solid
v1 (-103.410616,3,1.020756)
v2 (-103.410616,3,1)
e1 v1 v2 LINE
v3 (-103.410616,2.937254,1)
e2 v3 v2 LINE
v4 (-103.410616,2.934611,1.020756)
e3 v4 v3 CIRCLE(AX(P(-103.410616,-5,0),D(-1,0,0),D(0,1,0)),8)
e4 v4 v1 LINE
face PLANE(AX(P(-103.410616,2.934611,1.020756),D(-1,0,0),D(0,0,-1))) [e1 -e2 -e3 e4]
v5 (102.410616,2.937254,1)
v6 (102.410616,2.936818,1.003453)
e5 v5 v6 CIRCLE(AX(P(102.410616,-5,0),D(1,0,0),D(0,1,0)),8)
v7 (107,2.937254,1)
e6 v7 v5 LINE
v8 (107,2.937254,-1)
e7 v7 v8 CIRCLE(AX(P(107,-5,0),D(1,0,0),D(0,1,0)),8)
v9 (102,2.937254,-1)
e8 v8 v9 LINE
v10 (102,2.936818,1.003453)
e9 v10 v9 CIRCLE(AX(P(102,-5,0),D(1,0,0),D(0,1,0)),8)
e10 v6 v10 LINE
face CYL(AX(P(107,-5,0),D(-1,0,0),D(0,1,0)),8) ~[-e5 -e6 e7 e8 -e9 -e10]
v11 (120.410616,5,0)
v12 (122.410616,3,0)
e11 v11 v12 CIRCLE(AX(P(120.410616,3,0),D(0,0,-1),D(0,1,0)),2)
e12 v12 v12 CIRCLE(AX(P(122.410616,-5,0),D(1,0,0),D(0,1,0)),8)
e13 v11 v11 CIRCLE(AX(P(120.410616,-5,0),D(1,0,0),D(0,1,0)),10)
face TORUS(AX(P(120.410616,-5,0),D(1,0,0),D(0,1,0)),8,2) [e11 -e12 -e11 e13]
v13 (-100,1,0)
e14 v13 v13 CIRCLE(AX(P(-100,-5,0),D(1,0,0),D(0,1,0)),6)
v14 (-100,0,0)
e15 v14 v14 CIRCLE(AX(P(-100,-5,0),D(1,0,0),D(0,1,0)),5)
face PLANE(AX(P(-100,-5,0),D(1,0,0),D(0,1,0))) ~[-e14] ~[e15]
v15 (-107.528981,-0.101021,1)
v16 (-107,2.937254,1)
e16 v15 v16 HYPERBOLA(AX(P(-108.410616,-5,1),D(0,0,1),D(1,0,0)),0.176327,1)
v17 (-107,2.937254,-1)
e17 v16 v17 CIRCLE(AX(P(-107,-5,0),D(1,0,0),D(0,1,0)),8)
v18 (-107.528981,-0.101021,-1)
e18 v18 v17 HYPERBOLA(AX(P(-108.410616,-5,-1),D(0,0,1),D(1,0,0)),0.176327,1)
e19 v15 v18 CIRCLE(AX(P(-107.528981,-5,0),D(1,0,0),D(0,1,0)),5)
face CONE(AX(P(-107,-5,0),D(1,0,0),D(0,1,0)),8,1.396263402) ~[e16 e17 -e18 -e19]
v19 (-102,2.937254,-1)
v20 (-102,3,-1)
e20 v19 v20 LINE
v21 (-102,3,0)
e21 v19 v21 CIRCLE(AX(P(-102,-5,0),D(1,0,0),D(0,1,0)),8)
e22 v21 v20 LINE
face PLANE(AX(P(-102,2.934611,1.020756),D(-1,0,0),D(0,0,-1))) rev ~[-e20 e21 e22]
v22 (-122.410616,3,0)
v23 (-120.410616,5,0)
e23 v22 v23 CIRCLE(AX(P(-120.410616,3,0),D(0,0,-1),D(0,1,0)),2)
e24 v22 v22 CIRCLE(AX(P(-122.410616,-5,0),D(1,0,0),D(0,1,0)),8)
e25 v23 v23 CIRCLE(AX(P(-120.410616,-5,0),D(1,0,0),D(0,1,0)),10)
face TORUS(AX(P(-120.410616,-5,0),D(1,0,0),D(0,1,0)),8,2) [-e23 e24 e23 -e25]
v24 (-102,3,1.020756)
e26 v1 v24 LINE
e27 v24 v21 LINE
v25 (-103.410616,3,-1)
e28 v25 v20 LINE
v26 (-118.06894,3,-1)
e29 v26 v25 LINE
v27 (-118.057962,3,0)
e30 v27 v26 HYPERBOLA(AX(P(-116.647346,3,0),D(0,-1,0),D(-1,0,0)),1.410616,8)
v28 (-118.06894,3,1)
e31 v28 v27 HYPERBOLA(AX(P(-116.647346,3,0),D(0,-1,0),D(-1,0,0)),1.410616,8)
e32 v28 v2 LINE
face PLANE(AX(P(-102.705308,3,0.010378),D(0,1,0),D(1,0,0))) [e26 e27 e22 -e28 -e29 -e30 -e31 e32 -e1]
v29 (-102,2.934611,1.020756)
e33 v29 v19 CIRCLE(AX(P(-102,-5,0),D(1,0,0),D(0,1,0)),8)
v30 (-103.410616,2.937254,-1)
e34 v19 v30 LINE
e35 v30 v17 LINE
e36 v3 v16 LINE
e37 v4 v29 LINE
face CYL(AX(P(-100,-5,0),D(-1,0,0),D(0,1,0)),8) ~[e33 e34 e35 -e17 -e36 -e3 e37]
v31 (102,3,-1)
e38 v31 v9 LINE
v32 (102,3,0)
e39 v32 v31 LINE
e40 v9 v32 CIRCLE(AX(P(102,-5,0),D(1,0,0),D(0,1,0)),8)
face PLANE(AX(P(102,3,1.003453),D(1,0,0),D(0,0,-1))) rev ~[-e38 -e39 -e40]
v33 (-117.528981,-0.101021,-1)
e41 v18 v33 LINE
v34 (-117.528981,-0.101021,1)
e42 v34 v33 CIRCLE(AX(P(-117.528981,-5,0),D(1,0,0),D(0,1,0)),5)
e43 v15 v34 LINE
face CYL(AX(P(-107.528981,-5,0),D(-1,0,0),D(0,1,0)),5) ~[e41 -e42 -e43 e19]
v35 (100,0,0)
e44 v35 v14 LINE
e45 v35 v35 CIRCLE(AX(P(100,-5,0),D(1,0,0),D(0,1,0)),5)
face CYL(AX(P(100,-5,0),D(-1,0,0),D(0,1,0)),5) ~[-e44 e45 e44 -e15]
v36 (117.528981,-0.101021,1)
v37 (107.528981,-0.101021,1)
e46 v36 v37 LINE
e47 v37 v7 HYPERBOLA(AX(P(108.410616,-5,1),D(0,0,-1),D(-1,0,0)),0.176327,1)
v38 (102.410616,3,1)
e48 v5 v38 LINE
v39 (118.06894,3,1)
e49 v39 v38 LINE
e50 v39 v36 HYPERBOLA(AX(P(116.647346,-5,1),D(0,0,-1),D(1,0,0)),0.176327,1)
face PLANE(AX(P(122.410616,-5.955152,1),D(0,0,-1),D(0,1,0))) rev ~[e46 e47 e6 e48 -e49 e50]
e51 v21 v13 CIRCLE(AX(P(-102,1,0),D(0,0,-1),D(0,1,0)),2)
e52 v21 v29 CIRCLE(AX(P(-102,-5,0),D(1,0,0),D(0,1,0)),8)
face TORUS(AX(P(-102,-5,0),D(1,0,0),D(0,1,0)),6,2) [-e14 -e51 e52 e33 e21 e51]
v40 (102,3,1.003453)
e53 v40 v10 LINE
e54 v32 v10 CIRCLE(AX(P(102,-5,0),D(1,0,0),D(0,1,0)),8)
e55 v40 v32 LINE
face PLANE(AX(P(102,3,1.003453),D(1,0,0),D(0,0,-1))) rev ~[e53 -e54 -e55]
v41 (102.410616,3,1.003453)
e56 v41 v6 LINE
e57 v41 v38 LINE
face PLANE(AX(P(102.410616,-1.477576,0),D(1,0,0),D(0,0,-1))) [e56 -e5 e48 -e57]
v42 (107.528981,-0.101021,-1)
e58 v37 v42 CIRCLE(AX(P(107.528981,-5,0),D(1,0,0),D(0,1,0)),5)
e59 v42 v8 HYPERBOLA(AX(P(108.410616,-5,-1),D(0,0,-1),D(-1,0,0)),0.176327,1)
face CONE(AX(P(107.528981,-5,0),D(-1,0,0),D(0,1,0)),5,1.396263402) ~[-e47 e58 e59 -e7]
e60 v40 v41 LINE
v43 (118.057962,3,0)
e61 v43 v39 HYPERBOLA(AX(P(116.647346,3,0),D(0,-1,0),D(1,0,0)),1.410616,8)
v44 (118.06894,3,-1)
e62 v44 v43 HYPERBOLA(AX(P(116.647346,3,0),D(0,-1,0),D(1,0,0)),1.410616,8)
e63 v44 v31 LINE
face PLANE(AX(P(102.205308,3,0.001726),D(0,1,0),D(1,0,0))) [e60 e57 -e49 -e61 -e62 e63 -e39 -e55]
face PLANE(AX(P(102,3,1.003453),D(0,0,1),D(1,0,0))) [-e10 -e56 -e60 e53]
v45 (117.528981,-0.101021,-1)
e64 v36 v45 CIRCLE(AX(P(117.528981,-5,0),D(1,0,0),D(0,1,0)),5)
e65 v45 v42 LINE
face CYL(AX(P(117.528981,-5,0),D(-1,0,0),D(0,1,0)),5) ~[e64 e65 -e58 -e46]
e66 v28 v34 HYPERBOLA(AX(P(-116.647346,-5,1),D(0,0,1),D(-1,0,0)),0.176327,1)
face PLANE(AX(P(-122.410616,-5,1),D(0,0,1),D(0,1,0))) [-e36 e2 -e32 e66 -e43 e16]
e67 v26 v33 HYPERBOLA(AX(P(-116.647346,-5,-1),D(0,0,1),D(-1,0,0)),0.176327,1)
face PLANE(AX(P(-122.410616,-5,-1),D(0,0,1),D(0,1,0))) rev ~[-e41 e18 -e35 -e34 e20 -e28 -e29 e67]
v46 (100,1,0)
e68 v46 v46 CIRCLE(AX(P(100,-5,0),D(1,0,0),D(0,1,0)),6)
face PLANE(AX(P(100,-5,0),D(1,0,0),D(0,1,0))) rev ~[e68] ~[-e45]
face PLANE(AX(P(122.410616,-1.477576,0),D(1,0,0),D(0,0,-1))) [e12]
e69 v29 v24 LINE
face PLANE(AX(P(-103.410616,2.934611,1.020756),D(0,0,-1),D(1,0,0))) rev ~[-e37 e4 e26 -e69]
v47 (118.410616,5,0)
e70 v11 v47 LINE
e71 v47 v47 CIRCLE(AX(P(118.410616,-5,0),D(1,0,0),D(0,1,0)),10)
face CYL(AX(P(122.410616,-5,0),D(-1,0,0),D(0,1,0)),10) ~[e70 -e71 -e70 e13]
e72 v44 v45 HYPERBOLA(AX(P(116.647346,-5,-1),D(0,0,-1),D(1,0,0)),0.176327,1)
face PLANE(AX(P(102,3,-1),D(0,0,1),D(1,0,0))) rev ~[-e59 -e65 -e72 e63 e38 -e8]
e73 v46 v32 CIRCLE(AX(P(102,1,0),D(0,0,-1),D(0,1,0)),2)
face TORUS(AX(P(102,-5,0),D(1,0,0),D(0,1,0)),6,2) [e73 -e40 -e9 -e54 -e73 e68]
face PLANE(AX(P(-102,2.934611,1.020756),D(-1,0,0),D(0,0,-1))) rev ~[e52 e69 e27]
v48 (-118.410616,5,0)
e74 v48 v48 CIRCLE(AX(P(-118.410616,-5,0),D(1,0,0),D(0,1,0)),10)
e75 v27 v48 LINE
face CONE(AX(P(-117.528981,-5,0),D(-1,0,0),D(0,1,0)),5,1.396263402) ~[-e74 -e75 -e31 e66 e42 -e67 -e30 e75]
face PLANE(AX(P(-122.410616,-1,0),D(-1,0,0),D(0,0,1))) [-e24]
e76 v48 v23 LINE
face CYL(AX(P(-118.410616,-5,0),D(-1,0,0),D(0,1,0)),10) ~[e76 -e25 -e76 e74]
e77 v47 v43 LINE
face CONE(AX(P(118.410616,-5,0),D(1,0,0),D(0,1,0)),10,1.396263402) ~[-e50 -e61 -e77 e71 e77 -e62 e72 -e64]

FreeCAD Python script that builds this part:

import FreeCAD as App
import Part
import Sketcher
Q = App.Units.Quantity


def edges_at(feature, points):
    """Names of the edges that pass closest to the given points."""
    edges = feature.Shape.Edges
    near = lambda p: min(range(len(edges)), key=lambda i: edges[i].distToShape(Part.Vertex(*p))[0])
    return sorted({f"Edge{near(p) + 1}" for p in points})


def add_polygon(sketch, points):
    """Adds a closed chain of lines whose ends are joined by coincident constraints."""
    first, n = sketch.GeometryCount, len(points)
    for a, b in zip(points, points[1:] + points[:1]):
        sketch.addGeometry(Part.LineSegment(App.Vector(*a, 0), App.Vector(*b, 0)), False)
    for i in range(n):
        sketch.addConstraint(Sketcher.Constraint("Coincident", first + i, 2, first + (i + 1) % n, 1))

doc = App.newDocument("Part")
params = doc.addObject("Spreadsheet::Sheet", "Params")
for row, (alias, value) in enumerate([
    ("sketch1_width", "200 mm"),
    ("sketch1_width2", "7 mm"),
    ("sketch1_width3", "10 mm"),
    ("sketch1_width4", "4 mm"),
    ("sketch1_height", "3 mm"),
    ("revolution_angle", "360 deg"),
    ("sketch2_height", "2 mm"),
    ("pad1_length", "20 mm"),
    ("sketch3_width", "8 mm"),
    ("sketch3_height", "2 mm"),
    ("pad2_length", "19 mm"),
    ("fillet_radius", "2 mm"),
    ("pad3_length", "0.065389 mm"),
    ("pad4_length", "0.063182 mm"),
], start=1):
    params.set(f"A{row}", alias)
    params.set(f"B{row}", "=" + value)
    params.setAlias(f"B{row}", alias)

body = doc.addObject("PartDesign::Body", "Body")

# Sketch on XY plane
sketch1 = doc.addObject("Sketcher::SketchObject", "Sketch")
body.addObject(sketch1)
sketch1.AttachmentSupport = (doc.XY_Plane, [""])
sketch1.MapMode = "FlatFace"
add_polygon(sketch1, [(100, 3), (100, 0), (-100, 0), (-100, 3), (-107, 3), (-107.5, 0), (-117.5, 0), (-118.4, 5), (-122.4, 5), (-122.4, -5), (122.4, -5), (122.4, 5), (118.4, 5), (117.5, 0), (107.5, 0), (107, 3)])  # lines 0-15
sketch1.addGeometry(Part.LineSegment(App.Vector(-122.4, -5, 0), App.Vector(122.4, -5, 0)), True)  # axis
sketch1.addConstraint([
    Sketcher.Constraint("Vertical", 0),
    Sketcher.Constraint("Horizontal", 1),
    Sketcher.Constraint("Vertical", 2),
    Sketcher.Constraint("Horizontal", 3),
    Sketcher.Constraint("Horizontal", 5),
    Sketcher.Constraint("Horizontal", 7),
    Sketcher.Constraint("Vertical", 8),
    Sketcher.Constraint("Horizontal", 9),
    Sketcher.Constraint("Vertical", 10),
    Sketcher.Constraint("Horizontal", 11),
    Sketcher.Constraint("Horizontal", 13),
    Sketcher.Constraint("Horizontal", 15),
    Sketcher.Constraint("Horizontal", 16),
    Sketcher.Constraint("Coincident", 16, 1, 8, 2),
    Sketcher.Constraint("Symmetric", 0, 2, 1, 2, -1, 1),
    Sketcher.Constraint("Symmetric", 7, 2, 9, 2, -1, 1),
    Sketcher.Constraint("Symmetric", 5, 2, 12, 2, -1, 1),
    Sketcher.Constraint("Symmetric", 6, 2, 11, 2, -2),
    Sketcher.Constraint("Symmetric", 4, 2, 13, 2, -2),
    Sketcher.Constraint("Symmetric", 3, 2, 14, 2, -2),
    Sketcher.Constraint("Parallel", 4, 12),
    Sketcher.Constraint("Vertical", 10, 2, 16, 2),
    Sketcher.Constraint("Equal", 13, 8),
    Sketcher.Constraint("DistanceX", 1, 2, 1, 1, 200.0),
    Sketcher.Constraint("DistanceX", 3, 2, 3, 1, 7.0),
    Sketcher.Constraint("DistanceX", 5, 2, 5, 1, 10.0),
    Sketcher.Constraint("DistanceX", 7, 2, 7, 1, 4.0),
    Sketcher.Constraint("DistanceY", 0, 2, 0, 1, 3.0),
    Sketcher.Constraint("Angle", 4, Q("-100 deg")),
])
sketch1.setExpression("Constraints[39]", "Params.sketch1_width")
sketch1.setExpression("Constraints[40]", "Params.sketch1_width2")
sketch1.setExpression("Constraints[41]", "Params.sketch1_width3")
sketch1.setExpression("Constraints[42]", "Params.sketch1_width4")
sketch1.setExpression("Constraints[43]", "Params.sketch1_height")
revolution = doc.addObject("PartDesign::Revolution", "Revolution")
body.addObject(revolution)
revolution.Profile = sketch1
revolution.ReferenceAxis = (sketch1, ["Axis0"])
revolution.setExpression("Angle", "Params.revolution_angle")

# Sketch on YZ plane
sketch2 = doc.addObject("Sketcher::SketchObject", "Sketch001")
body.addObject(sketch2)
sketch2.AttachmentSupport = (doc.YZ_Plane, [""])
sketch2.MapMode = "FlatFace"
sketch2.AttachmentOffset = App.Placement(App.Vector(0, 0, 122.410616), App.Rotation())
add_polygon(sketch2, [(3, 1), (-6, 1), (-6, -1), (3, -1)])  # lines 0-3
sketch2.addConstraint([
    Sketcher.Constraint("Horizontal", 0),
    Sketcher.Constraint("Vertical", 1),
    Sketcher.Constraint("Horizontal", 2),
    Sketcher.Constraint("Vertical", 3),
    Sketcher.Constraint("DistanceY", 1, 2, 1, 1, 2.0),
    Sketcher.Constraint("DistanceY", -1, 1, 0, 2, 1.0),
    Sketcher.Constraint("DistanceX", -1, 1, 2, 2, 3.0),
    Sketcher.Constraint("DistanceX", 0, 2, 0, 1, 8.955152),
])
sketch2.setExpression("Constraints[8]", "Params.sketch2_height")
pad1 = doc.addObject("PartDesign::Pad", "Pad")
body.addObject(pad1)
pad1.Profile = sketch2
pad1.setExpression("Length", "Params.pad1_length")
pad1.Reversed = True

# Sketch on YZ plane
sketch3 = doc.addObject("Sketcher::SketchObject", "Sketch002")
body.addObject(sketch3)
sketch3.AttachmentSupport = (doc.YZ_Plane, [""])
sketch3.MapMode = "FlatFace"
sketch3.AttachmentOffset = App.Placement(App.Vector(0, 0, -122.410616), App.Rotation())
add_polygon(sketch3, [(3, -1), (-5, -1), (-5, 1), (3, 1)])  # lines 0-3
sketch3.addConstraint([
    Sketcher.Constraint("Horizontal", 0),
    Sketcher.Constraint("Vertical", 1),
    Sketcher.Constraint("Horizontal", 2),
    Sketcher.Constraint("Vertical", 3),
    Sketcher.Constraint("DistanceX", 0, 2, 0, 1, 8.0),
    Sketcher.Constraint("DistanceY", 1, 1, 1, 2, 2.0),
    Sketcher.Constraint("DistanceX", 0, 2, -1, 1, 5.0),
    Sketcher.Constraint("DistanceY", 0, 2, -1, 1, 1.0),
])
sketch3.setExpression("Constraints[8]", "Params.sketch3_width")
sketch3.setExpression("Constraints[9]", "Params.sketch3_height")
pad2 = doc.addObject("PartDesign::Pad", "Pad001")
body.addObject(pad2)
pad2.Profile = sketch3
pad2.setExpression("Length", "Params.pad2_length")
doc.recompute()

fillet = doc.addObject("PartDesign::Fillet", "Fillet")
body.addObject(fillet)
fillet.Base = (pad2, edges_at(pad2, [
    (-122.411, -15, 0),
    (-100, -13, 0),
    (100, -13, 0),
    (122.411, -15, 0),
]))
fillet.setExpression("Radius", "Params.fillet_radius")

# Sketch on XZ plane
sketch4 = doc.addObject("Sketcher::SketchObject", "Sketch003")
body.addObject(sketch4)
sketch4.AttachmentSupport = (doc.XZ_Plane, [""])
sketch4.MapMode = "FlatFace"
sketch4.AttachmentOffset = App.Placement(App.Vector(0, 0, -2.934611), App.Rotation())
add_polygon(sketch4, [(-103.4, -1), (-103.4, 1), (-102, 1), (-102, -1)])  # lines 0-3
sketch4.addConstraint([
    Sketcher.Constraint("Vertical", 0),
    Sketcher.Constraint("Horizontal", 1),
    Sketcher.Constraint("Vertical", 2),
    Sketcher.Constraint("Horizontal", 3),
    Sketcher.Constraint("DistanceX", 1, 2, -1, 1, 102.0),
    Sketcher.Constraint("DistanceY", 2, 2, -1, 1, 1.0),
    Sketcher.Constraint("DistanceX", 1, 1, 1, 2, 1.410616),
    Sketcher.Constraint("DistanceY", 0, 1, 0, 2, 2.020756),
])
pad3 = doc.addObject("PartDesign::Pad", "Pad002")
body.addObject(pad3)
pad3.Profile = sketch4
pad3.setExpression("Length", "Params.pad3_length")
pad3.Reversed = True

# Sketch on XZ plane
sketch5 = doc.addObject("Sketcher::SketchObject", "Sketch004")
body.addObject(sketch5)
sketch5.AttachmentSupport = (doc.XZ_Plane, [""])
sketch5.MapMode = "FlatFace"
sketch5.AttachmentOffset = App.Placement(App.Vector(0, 0, -3), App.Rotation())
add_polygon(sketch5, [(102, -1), (102, 1), (102.41, 1), (102.41, -1)])  # lines 0-3
sketch5.addConstraint([
    Sketcher.Constraint("Vertical", 0),
    Sketcher.Constraint("Horizontal", 1),
    Sketcher.Constraint("Vertical", 2),
    Sketcher.Constraint("Horizontal", 3),
    Sketcher.Constraint("DistanceX", -1, 1, 0, 2, 102.0),
    Sketcher.Constraint("DistanceY", 2, 2, -1, 1, 1.0),
    Sketcher.Constraint("DistanceX", 1, 1, 1, 2, 0.410616),
    Sketcher.Constraint("DistanceY", 0, 1, 0, 2, 2.003453),
])
pad4 = doc.addObject("PartDesign::Pad", "Pad003")
body.addObject(pad4)
pad4.Profile = sketch5
pad4.setExpression("Length", "Params.pad4_length")
pad5 = doc.addObject("PartDesign::Pad", "Pad004")
body.addObject(pad5)
pad5.Profile = sketch5
pad5.Type = "UpToFirst"

doc.recompute()
